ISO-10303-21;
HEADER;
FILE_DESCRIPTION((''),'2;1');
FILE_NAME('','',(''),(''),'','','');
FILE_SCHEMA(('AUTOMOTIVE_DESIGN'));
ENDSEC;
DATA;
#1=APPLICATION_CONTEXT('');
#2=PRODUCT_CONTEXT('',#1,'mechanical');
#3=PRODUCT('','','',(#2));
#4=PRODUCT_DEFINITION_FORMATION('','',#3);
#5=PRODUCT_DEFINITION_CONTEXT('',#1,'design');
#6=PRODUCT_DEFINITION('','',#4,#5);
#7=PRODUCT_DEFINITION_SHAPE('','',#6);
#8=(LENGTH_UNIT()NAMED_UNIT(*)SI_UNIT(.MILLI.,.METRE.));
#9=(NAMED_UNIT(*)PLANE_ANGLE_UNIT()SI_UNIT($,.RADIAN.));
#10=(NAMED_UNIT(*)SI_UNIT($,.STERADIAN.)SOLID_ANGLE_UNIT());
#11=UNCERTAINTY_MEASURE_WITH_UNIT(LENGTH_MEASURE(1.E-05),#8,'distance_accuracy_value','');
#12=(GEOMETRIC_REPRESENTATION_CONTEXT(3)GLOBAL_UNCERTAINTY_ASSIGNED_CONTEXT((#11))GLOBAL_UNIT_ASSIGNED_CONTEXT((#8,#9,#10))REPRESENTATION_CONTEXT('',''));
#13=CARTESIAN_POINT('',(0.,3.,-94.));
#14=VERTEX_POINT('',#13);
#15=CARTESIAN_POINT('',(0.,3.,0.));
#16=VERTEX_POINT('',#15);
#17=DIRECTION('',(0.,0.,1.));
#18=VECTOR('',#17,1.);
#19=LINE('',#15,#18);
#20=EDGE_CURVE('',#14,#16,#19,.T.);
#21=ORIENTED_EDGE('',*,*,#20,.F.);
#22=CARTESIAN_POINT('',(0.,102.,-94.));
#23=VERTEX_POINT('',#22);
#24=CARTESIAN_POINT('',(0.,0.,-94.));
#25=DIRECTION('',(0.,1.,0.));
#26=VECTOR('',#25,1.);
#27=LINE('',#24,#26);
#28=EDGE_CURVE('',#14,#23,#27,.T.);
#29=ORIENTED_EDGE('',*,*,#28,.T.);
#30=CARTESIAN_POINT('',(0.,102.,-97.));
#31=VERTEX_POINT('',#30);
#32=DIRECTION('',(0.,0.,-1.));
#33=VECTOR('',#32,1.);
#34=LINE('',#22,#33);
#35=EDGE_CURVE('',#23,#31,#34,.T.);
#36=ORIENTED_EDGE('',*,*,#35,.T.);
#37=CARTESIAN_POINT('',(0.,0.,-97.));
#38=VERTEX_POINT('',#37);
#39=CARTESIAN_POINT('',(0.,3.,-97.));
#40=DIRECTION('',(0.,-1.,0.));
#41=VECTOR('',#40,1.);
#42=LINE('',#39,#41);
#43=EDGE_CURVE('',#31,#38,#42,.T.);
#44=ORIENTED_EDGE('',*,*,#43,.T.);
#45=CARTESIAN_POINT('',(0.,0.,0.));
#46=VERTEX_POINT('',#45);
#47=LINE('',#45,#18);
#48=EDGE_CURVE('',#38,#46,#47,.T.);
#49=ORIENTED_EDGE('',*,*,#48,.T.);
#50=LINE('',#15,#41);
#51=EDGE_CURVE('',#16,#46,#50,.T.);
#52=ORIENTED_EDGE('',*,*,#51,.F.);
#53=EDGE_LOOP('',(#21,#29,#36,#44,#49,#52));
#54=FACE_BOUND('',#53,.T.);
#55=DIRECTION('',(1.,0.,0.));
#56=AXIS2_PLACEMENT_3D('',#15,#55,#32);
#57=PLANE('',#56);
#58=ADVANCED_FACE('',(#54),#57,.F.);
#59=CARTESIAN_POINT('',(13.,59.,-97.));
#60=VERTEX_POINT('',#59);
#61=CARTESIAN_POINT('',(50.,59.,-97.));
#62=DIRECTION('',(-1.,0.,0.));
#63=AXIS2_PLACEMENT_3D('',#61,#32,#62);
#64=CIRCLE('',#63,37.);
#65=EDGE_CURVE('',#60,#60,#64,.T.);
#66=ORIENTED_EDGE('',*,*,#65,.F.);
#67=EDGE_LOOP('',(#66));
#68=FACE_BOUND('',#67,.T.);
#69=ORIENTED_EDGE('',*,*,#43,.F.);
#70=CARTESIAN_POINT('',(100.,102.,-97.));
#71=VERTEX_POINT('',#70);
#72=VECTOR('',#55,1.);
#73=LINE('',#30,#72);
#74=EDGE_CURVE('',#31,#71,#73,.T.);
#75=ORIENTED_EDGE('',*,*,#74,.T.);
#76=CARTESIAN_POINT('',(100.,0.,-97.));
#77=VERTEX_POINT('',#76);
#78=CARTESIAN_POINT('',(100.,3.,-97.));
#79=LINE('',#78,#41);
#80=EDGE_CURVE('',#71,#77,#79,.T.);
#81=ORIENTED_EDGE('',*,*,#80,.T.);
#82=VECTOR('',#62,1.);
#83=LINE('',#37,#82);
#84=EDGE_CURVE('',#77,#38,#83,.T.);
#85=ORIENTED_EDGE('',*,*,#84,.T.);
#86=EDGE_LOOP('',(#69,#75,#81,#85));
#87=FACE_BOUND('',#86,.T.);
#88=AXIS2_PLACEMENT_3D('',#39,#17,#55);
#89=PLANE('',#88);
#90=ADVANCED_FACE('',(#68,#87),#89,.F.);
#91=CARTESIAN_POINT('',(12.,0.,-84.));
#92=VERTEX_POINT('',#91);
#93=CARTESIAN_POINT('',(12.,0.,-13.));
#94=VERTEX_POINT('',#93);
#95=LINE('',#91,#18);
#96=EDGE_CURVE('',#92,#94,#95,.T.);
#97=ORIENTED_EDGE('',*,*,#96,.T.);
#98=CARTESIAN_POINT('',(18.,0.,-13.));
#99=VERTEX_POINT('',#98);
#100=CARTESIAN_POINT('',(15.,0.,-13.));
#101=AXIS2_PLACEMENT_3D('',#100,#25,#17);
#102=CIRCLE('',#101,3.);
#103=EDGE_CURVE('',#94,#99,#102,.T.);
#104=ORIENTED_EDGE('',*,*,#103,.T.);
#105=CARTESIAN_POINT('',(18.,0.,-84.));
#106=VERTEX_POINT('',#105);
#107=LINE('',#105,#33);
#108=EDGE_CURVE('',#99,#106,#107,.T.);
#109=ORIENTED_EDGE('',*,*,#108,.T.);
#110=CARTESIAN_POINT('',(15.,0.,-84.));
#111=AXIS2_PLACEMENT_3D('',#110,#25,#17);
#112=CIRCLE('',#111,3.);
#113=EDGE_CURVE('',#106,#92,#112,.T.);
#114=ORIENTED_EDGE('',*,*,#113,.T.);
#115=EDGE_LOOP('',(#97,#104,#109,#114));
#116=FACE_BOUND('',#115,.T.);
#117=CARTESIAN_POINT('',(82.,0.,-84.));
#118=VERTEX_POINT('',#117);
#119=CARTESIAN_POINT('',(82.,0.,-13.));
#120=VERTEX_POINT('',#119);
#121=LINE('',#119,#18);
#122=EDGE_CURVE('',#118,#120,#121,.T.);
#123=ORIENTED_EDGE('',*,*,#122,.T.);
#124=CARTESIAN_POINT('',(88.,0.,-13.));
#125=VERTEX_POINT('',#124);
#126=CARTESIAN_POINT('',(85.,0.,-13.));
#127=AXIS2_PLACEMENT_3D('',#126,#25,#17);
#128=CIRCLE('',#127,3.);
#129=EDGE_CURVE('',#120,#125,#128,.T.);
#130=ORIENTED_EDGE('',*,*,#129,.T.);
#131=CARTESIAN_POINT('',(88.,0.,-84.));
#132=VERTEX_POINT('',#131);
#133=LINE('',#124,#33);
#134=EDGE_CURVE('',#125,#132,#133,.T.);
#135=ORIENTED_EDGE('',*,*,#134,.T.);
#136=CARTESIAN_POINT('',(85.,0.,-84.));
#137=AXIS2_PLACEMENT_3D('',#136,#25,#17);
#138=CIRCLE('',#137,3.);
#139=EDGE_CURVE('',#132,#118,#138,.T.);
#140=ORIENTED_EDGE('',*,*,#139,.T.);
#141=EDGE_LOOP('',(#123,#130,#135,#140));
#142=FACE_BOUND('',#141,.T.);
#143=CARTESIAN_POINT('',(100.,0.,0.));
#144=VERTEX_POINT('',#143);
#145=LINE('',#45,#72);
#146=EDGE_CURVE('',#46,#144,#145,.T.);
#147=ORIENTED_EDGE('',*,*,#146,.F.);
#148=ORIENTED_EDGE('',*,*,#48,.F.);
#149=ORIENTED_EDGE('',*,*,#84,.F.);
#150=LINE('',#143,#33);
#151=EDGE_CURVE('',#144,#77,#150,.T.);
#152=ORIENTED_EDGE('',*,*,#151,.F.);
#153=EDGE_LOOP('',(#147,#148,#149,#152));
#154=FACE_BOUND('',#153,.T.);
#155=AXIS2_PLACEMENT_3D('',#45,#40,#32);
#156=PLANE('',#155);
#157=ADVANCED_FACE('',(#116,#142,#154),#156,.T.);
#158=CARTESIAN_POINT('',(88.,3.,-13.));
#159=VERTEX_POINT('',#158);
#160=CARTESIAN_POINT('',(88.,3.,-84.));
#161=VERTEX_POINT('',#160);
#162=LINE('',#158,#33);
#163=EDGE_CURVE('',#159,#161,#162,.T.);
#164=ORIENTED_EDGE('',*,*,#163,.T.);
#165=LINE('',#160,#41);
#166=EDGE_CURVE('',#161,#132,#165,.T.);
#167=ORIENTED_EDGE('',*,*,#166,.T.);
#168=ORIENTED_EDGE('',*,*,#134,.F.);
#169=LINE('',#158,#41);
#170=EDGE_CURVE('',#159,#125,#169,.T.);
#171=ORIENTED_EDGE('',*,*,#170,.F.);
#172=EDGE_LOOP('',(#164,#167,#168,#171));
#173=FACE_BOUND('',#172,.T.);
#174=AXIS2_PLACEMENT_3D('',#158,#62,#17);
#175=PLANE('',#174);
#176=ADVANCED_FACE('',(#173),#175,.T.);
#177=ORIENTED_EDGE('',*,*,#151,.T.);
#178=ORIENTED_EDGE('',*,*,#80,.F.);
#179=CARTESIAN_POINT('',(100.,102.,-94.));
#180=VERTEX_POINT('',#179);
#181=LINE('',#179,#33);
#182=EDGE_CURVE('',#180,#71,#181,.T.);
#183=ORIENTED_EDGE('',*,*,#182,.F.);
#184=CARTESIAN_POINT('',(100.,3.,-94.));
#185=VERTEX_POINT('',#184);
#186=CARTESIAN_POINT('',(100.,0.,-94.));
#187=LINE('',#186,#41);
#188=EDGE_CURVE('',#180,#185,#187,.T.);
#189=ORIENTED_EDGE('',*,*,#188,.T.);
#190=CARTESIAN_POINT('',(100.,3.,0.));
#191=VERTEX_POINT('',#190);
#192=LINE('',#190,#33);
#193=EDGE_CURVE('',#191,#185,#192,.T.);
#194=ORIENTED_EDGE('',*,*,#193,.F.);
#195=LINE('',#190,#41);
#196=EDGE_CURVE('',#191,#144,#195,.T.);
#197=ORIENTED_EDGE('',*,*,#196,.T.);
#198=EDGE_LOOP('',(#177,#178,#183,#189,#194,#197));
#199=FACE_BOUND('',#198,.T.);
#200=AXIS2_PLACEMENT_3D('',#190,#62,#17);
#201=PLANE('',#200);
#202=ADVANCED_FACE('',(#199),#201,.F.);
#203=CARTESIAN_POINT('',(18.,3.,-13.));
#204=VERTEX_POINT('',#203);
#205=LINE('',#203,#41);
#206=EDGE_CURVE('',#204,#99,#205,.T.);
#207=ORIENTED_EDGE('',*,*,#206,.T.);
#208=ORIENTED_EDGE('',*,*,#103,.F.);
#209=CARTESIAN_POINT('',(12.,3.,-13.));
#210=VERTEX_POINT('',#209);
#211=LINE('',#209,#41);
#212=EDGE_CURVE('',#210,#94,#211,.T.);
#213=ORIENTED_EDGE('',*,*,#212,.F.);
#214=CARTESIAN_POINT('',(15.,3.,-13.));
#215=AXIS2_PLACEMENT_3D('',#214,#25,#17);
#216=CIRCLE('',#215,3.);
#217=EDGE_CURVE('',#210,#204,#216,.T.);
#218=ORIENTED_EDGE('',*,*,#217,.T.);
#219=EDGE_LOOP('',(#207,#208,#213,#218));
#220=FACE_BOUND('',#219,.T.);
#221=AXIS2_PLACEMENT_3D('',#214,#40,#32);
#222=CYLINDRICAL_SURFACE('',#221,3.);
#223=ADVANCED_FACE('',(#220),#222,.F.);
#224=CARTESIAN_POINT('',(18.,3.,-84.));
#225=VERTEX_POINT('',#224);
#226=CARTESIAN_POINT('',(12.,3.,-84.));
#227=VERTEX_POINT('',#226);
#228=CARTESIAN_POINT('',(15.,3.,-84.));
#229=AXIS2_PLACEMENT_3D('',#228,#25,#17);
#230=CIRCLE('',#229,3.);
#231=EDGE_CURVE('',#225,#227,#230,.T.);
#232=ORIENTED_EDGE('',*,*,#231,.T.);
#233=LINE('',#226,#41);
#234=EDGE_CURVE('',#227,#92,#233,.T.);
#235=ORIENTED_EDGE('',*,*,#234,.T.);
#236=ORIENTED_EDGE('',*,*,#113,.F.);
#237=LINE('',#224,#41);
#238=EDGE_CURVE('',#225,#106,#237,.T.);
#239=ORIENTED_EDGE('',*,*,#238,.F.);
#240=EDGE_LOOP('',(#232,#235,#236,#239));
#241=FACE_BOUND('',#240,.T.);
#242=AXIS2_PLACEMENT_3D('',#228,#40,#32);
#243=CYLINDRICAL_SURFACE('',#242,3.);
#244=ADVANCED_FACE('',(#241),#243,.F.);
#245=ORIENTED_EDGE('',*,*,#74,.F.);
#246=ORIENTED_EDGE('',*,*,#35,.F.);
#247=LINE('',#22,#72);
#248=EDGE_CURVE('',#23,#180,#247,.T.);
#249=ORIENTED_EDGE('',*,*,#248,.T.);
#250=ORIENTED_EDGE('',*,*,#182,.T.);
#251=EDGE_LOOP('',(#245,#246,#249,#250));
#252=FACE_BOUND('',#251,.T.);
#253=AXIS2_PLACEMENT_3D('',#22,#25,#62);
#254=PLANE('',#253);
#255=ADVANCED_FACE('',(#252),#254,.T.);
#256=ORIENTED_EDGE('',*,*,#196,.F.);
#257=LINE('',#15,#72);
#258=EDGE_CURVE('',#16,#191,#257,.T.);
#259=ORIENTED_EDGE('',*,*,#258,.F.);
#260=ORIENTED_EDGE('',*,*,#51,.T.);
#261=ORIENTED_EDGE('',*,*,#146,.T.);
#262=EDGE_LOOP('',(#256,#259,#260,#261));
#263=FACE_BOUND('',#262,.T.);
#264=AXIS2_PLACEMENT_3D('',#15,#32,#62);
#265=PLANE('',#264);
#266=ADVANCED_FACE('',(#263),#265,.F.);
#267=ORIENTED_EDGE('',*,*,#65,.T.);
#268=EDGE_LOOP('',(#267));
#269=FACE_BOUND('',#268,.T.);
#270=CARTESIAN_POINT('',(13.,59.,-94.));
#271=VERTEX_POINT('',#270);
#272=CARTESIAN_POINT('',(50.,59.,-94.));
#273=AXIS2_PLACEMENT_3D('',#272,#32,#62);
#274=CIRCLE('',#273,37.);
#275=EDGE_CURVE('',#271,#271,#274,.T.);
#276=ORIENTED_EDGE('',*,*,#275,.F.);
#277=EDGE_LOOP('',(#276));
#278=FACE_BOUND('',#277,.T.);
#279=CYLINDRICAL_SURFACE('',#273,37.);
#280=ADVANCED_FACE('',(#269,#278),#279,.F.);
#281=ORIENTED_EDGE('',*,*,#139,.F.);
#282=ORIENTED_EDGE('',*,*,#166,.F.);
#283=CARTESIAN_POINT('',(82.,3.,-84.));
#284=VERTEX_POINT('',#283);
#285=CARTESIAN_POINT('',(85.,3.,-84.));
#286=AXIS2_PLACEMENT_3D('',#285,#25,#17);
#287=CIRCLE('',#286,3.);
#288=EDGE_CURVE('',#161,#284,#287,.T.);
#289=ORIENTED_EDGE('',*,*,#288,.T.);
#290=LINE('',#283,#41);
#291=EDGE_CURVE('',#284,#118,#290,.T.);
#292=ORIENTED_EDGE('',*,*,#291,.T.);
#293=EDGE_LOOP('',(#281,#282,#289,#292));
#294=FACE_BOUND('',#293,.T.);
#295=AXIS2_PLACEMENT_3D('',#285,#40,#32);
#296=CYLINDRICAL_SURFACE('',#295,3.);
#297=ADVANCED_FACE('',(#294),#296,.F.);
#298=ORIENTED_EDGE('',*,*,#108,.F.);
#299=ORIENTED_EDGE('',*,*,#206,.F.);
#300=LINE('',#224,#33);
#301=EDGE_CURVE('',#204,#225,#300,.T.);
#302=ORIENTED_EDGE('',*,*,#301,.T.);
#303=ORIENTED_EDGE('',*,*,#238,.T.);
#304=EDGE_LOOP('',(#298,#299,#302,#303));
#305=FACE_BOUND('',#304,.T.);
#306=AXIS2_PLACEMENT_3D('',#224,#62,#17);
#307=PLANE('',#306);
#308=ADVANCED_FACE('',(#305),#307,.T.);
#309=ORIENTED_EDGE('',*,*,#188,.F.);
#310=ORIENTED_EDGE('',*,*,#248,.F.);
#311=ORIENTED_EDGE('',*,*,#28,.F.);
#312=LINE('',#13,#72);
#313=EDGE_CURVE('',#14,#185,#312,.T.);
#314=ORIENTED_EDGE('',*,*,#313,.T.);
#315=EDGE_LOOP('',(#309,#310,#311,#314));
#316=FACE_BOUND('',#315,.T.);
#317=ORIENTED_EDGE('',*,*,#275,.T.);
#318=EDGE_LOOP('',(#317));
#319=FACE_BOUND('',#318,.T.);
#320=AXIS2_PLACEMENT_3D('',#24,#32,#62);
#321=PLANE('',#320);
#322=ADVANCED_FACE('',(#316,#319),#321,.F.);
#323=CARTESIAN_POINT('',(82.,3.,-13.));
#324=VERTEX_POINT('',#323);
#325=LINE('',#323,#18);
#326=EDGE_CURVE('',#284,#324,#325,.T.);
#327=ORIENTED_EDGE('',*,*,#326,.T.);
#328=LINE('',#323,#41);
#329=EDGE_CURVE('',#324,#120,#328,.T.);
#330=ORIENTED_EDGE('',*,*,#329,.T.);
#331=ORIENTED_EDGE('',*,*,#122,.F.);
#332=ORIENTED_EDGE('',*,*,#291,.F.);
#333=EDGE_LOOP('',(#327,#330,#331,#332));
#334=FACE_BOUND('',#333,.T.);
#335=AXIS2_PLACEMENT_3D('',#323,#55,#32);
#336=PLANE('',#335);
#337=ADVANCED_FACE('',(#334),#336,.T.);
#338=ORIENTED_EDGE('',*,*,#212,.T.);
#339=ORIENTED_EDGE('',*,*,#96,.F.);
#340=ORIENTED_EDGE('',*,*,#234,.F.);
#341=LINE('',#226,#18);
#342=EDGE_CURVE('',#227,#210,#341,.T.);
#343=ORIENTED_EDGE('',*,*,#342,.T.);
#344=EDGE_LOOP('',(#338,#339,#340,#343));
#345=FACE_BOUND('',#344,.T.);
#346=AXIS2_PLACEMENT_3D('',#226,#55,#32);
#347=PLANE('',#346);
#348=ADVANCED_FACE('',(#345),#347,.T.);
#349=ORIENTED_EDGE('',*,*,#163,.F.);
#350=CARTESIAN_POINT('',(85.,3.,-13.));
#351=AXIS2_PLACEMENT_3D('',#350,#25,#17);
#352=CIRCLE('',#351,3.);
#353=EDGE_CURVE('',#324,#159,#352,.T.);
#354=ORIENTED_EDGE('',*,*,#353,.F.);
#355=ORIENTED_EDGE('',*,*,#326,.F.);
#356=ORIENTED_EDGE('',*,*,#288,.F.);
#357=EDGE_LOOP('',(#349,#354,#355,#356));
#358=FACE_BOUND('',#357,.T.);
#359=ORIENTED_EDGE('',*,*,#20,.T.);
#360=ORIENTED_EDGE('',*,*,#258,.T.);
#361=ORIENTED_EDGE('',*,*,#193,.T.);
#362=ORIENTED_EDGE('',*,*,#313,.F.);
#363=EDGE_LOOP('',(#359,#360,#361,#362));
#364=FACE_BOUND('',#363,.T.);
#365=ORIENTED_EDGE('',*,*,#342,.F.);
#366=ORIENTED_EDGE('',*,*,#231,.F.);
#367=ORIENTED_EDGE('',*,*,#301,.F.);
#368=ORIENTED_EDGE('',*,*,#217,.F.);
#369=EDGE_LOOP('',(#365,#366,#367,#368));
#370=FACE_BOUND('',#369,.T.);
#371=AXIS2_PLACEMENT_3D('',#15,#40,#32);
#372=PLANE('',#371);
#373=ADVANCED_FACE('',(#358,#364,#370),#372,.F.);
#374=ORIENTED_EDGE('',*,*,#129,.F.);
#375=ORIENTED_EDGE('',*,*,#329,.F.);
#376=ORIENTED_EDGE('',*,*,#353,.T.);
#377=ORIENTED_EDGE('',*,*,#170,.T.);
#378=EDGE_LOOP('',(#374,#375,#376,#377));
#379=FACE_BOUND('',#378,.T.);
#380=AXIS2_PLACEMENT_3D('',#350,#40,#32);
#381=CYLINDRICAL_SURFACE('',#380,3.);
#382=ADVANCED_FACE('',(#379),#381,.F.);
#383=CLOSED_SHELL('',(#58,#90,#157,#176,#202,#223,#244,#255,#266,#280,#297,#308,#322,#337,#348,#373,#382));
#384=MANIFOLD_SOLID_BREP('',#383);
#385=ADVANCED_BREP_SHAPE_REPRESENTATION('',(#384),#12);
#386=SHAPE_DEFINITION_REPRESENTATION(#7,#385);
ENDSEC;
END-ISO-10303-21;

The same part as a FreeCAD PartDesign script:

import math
import FreeCAD as App
import Part
import Sketcher
Q = App.Units.Quantity

doc = App.newDocument("Part")
body = doc.addObject("PartDesign::Body", "Body")

sketch1 = body.newObject("Sketcher::SketchObject", "Sketch")
sketch1.AttachmentSupport = (doc.getObject("XZ_Plane"), [""])
sketch1.MapMode = "FlatFace"
sketch1.addGeometry([
    Part.LineSegment(App.Vector(0, -97, 0), App.Vector(0, 0, 0)),
    Part.LineSegment(App.Vector(0, 0, 0), App.Vector(100, 0, 0)),
    Part.LineSegment(App.Vector(100, 0, 0), App.Vector(100, -97, 0)),
    Part.LineSegment(App.Vector(100, -97, 0), App.Vector(0, -97, 0)),
    Part.ArcOfCircle(Part.Circle(App.Vector(15, -84, 0), App.Vector(0, 0, 1), 3), math.radians(180), math.radians(360)),
    Part.LineSegment(App.Vector(18, -84, 0), App.Vector(18, -13, 0)),
    Part.ArcOfCircle(Part.Circle(App.Vector(15, -13, 0), App.Vector(0, 0, 1), 3), math.radians(0), math.radians(180)),
    Part.LineSegment(App.Vector(12, -13, 0), App.Vector(12, -84, 0)),
    Part.ArcOfCircle(Part.Circle(App.Vector(85, -13, 0), App.Vector(0, 0, 1), 3), math.radians(0), math.radians(180)),
    Part.LineSegment(App.Vector(82, -13, 0), App.Vector(82, -84, 0)),
    Part.ArcOfCircle(Part.Circle(App.Vector(85, -84, 0), App.Vector(0, 0, 1), 3), math.radians(180), math.radians(360)),
    Part.LineSegment(App.Vector(88, -84, 0), App.Vector(88, -13, 0)),
], False)
sketch1.addConstraint([
    Sketcher.Constraint("Coincident", 0, 2, 1, 1),
    Sketcher.Constraint("Coincident", 1, 2, 2, 1),
    Sketcher.Constraint("Coincident", 2, 2, 3, 1),
    Sketcher.Constraint("Coincident", 3, 2, 0, 1),
    Sketcher.Constraint("Tangent", 4, 2, 5, 1),
    Sketcher.Constraint("Tangent", 5, 2, 6, 1),
    Sketcher.Constraint("Tangent", 6, 2, 7, 1),
    Sketcher.Constraint("Tangent", 7, 2, 4, 1),
    Sketcher.Constraint("Tangent", 8, 2, 9, 1),
    Sketcher.Constraint("Tangent", 9, 2, 10, 1),
    Sketcher.Constraint("Tangent", 10, 2, 11, 1),
    Sketcher.Constraint("Tangent", 11, 2, 8, 1),
    Sketcher.Constraint("Vertical", 0),
    Sketcher.Constraint("Horizontal", 1),
    Sketcher.Constraint("Vertical", 2),
    Sketcher.Constraint("Horizontal", 3),
    Sketcher.Constraint("Vertical", 5),
    Sketcher.Constraint("Vertical", 7),
    Sketcher.Constraint("Vertical", 9),
    Sketcher.Constraint("Vertical", 11),
    Sketcher.Constraint("Coincident", 0, 2, -1, 1),
    Sketcher.Constraint("Equal", 6, 8),
    Sketcher.Constraint("Horizontal", 6, 3, 8, 3),
    Sketcher.Constraint("Horizontal", 4, 3, 10, 3),
    Sketcher.Constraint("Radius", 4, Q("3 mm")),
    Sketcher.Constraint("DistanceX", 1, 1, 1, 2, Q("100 mm")),
    Sketcher.Constraint("DistanceY", 0, 1, 0, 2, Q("97 mm")),
    Sketcher.Constraint("DistanceY", 5, 1, 5, 2, Q("71 mm")),
    Sketcher.Constraint("DistanceX", -1, 1, 4, 3, Q("15 mm")),
    Sketcher.Constraint("DistanceY", 4, 3, -1, 1, Q("84 mm")),
    Sketcher.Constraint("DistanceX", -1, 1, 8, 3, Q("85 mm")),
])
pad1 = body.newObject("PartDesign::Pad", "Pad")
pad1.Profile = sketch1
pad1.Length = 3
pad1.Reversed = True

sketch2 = body.newObject("Sketcher::SketchObject", "Sketch001")
sketch2.AttachmentSupport = (doc.getObject("XY_Plane"), [""])
sketch2.MapMode = "FlatFace"
sketch2.AttachmentOffset = App.Placement(App.Vector(0, 0, -97), App.Rotation())
sketch2.addGeometry([
    Part.LineSegment(App.Vector(100, 102, 0), App.Vector(100, 0, 0)),
    Part.LineSegment(App.Vector(100, 0, 0), App.Vector(0, 0, 0)),
    Part.LineSegment(App.Vector(0, 0, 0), App.Vector(0, 102, 0)),
    Part.LineSegment(App.Vector(0, 102, 0), App.Vector(100, 102, 0)),
    Part.Circle(App.Vector(50, 59, 0), App.Vector(0, 0, 1), 37),
], False)
sketch2.addConstraint([
    Sketcher.Constraint("Coincident", 0, 2, 1, 1),
    Sketcher.Constraint("Coincident", 1, 2, 2, 1),
    Sketcher.Constraint("Coincident", 2, 2, 3, 1),
    Sketcher.Constraint("Coincident", 3, 2, 0, 1),
    Sketcher.Constraint("Vertical", 0),
    Sketcher.Constraint("Horizontal", 1),
    Sketcher.Constraint("Vertical", 2),
    Sketcher.Constraint("Horizontal", 3),
    Sketcher.Constraint("Coincident", 1, 2, -1, 1),
    Sketcher.Constraint("Diameter", 4, Q("74 mm")),
    Sketcher.Constraint("DistanceX", 1, 2, 1, 1, Q("100 mm")),
    Sketcher.Constraint("DistanceY", 0, 2, 0, 1, Q("102 mm")),
    Sketcher.Constraint("DistanceX", -1, 1, 4, 3, Q("50 mm")),
    Sketcher.Constraint("DistanceY", -1, 1, 4, 3, Q("59 mm")),
])
pad2 = body.newObject("PartDesign::Pad", "Pad001")
pad2.Profile = sketch2
pad2.Length = 3

doc.recompute()
